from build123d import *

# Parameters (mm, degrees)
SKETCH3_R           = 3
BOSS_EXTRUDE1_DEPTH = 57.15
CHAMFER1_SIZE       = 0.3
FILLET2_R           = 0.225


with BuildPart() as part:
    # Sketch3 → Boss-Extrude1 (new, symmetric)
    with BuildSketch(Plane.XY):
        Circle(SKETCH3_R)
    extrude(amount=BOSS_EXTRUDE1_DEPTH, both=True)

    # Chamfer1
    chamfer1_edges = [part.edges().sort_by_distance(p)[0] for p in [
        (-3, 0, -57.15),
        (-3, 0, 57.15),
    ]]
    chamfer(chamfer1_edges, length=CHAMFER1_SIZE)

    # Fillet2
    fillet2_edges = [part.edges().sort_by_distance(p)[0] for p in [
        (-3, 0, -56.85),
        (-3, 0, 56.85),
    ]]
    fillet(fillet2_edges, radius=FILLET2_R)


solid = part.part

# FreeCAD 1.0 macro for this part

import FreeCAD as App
import Part
import Sketcher
Q = App.Units.Quantity


def edges_at(feature, points):
    """Names of the edges that pass closest to the given points."""
    edges = feature.Shape.Edges
    near = lambda p: min(range(len(edges)), key=lambda i: edges[i].distToShape(Part.Vertex(*p))[0])
    return sorted({f"Edge{near(p) + 1}" for p in points})

doc = App.newDocument("Part")
body = doc.addObject("PartDesign::Body", "Body")

# Sketch on XY plane
sketch1 = body.newObject("Sketcher::SketchObject", "Sketch")
sketch1.AttachmentSupport = (doc.getObject("XY_Plane"), [""])
sketch1.MapMode = "FlatFace"
sketch1.addGeometry(Part.Circle(App.Vector(0, 0, 0), App.Vector(0, 0, 1), 3), False)
sketch1.addConstraint([
    Sketcher.Constraint("Coincident", 0, 3, -1, 1),
    Sketcher.Constraint("Diameter", 0, Q("6 mm")),
])
pad1 = body.newObject("PartDesign::Pad", "Pad")
pad1.Profile = sketch1
pad1.Length = 114.3
pad1.Midplane = True
doc.recompute()

chamfer = body.newObject("PartDesign::Chamfer", "Chamfer")
chamfer.Base = (pad1, edges_at(pad1, [(-3, 0, -57.15), (-3, 0, 57.15)]))
chamfer.Size = 0.3
doc.recompute()

fillet = body.newObject("PartDesign::Fillet", "Fillet")
fillet.Base = (chamfer, edges_at(chamfer, [(-3, 0, -56.85), (-3, 0, 56.85)]))
fillet.Radius = 0.225

doc.recompute()
